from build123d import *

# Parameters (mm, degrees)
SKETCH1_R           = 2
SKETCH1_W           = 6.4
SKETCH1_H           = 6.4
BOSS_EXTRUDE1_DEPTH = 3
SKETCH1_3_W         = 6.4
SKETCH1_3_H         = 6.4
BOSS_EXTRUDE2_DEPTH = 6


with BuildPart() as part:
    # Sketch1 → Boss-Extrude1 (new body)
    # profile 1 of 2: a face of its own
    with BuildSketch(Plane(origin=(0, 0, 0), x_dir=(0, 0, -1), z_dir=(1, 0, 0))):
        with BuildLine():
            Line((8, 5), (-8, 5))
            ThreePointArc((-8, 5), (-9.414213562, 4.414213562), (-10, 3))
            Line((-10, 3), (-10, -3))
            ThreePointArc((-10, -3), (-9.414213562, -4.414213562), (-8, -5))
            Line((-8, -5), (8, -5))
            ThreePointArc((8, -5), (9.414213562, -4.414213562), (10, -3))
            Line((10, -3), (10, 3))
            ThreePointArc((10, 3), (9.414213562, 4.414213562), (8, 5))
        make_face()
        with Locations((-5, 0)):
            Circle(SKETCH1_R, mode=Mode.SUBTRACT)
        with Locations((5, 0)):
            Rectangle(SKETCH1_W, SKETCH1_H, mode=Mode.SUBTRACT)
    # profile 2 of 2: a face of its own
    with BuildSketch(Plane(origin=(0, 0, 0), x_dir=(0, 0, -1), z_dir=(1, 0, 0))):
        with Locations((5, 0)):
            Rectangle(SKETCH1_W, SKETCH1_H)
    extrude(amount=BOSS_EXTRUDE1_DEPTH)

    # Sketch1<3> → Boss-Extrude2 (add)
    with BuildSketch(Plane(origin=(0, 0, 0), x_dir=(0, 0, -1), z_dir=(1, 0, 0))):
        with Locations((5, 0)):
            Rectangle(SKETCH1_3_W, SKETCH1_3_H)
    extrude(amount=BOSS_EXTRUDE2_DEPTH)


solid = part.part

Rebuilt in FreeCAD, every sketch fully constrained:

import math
import FreeCAD as App
import Part
import Sketcher

V = App.Vector


def add_polygon(sketch, points):
    """Adds a closed chain of lines whose ends are joined by coincident constraints."""
    first, n = sketch.GeometryCount, len(points)
    for a, b in zip(points, points[1:] + points[:1]):
        sketch.addGeometry(Part.LineSegment(App.Vector(*a, 0), App.Vector(*b, 0)), False)
    for i in range(n):
        sketch.addConstraint(Sketcher.Constraint("Coincident", first + i, 2, first + (i + 1) % n, 1))

doc = App.newDocument("Part")
params = doc.addObject("Spreadsheet::Sheet", "Params")
for row, (alias, value) in enumerate([
    ("sketch1_diameter", "4 mm"),
    ("sketch1_width", "6 mm"),
    ("sketch1_height", "16 mm"),
    ("pad1_length", "3 mm"),
    ("sketch2_width", "6.4 mm"),
    ("pad2_length", "6 mm"),
], start=1):
    params.set(f"A{row}", alias)
    params.set(f"B{row}", "=" + value)
    params.setAlias(f"B{row}", alias)

body = doc.addObject("PartDesign::Body", "Body")

sketch1 = body.newObject("Sketcher::SketchObject", "Sketch")
sketch1.AttachmentSupport = (doc.getObject("YZ_Plane"), [""])
sketch1.MapMode = "FlatFace"
sketch1.addGeometry([
    Part.LineSegment(V(5, -8, 0), V(5, 8, 0)),
    Part.ArcOfCircle(Part.Circle(V(3, 8, 0), V(0, 0, 1), 2), math.radians(0), math.radians(90)),
    Part.LineSegment(V(3, 10, 0), V(-3, 10, 0)),
    Part.ArcOfCircle(Part.Circle(V(-3, 8, 0), V(0, 0, 1), 2), math.radians(90), math.radians(180)),
    Part.LineSegment(V(-5, 8, 0), V(-5, -8, 0)),
    Part.ArcOfCircle(Part.Circle(V(-3, -8, 0), V(0, 0, 1), 2), math.radians(-180), math.radians(-90)),
    Part.LineSegment(V(-3, -10, 0), V(3, -10, 0)),
    Part.ArcOfCircle(Part.Circle(V(3, -8, 0), V(0, 0, 1), 2), math.radians(-90), math.radians(0)),
    Part.Circle(V(0, 5, 0), V(0, 0, 1), 2),
], False)
sketch1.addConstraint([
    Sketcher.Constraint("Tangent", 0, 2, 1, 1),
    Sketcher.Constraint("Tangent", 1, 2, 2, 1),
    Sketcher.Constraint("Tangent", 2, 2, 3, 1),
    Sketcher.Constraint("Tangent", 3, 2, 4, 1),
    Sketcher.Constraint("Tangent", 4, 2, 5, 1),
    Sketcher.Constraint("Tangent", 5, 2, 6, 1),
    Sketcher.Constraint("Tangent", 6, 2, 7, 1),
    Sketcher.Constraint("Tangent", 7, 2, 0, 1),
    Sketcher.Constraint("Vertical", 0),
    Sketcher.Constraint("Horizontal", 2),
    Sketcher.Constraint("Vertical", 4),
    Sketcher.Constraint("Horizontal", 6),
    Sketcher.Constraint("Equal", 1, 3),
    Sketcher.Constraint("Equal", 3, 5),
    Sketcher.Constraint("Equal", 5, 7),
    Sketcher.Constraint("Equal", 7, 8),
    Sketcher.Constraint("Symmetric", 1, 3, 5, 3, -1, 1),
    Sketcher.Constraint("PointOnObject", 8, 3, -2),
    Sketcher.Constraint("Diameter", 8, 4.0),
    Sketcher.Constraint("DistanceX", 2, 2, 2, 1, 6.0),
    Sketcher.Constraint("DistanceY", 0, 1, 0, 2, 16.0),
    Sketcher.Constraint("DistanceY", -1, 1, 8, 3, 5.0),
])
sketch1.setExpression("Constraints[18]", "Params.sketch1_diameter")
sketch1.setExpression("Constraints[19]", "Params.sketch1_width")
sketch1.setExpression("Constraints[20]", "Params.sketch1_height")
pad1 = body.newObject("PartDesign::Pad", "Pad")
pad1.Profile = sketch1
pad1.setExpression("Length", "Params.pad1_length")

sketch2 = body.newObject("Sketcher::SketchObject", "Sketch001")
sketch2.AttachmentSupport = (doc.getObject("YZ_Plane"), [""])
sketch2.MapMode = "FlatFace"
add_polygon(sketch2, [(3, -2), (-3, -2), (-3, -8), (3, -8)])
sketch2.addConstraint([
    Sketcher.Constraint("Horizontal", 0),
    Sketcher.Constraint("Vertical", 1),
    Sketcher.Constraint("Horizontal", 2),
    Sketcher.Constraint("Vertical", 3),
    Sketcher.Constraint("Equal", 2, 1),
    Sketcher.Constraint("DistanceX", 0, 2, 0, 1, 6.4),
    Sketcher.Constraint("DistanceX", 0, 2, -1, 1, 3.2),
    Sketcher.Constraint("DistanceY", 0, 2, -1, 1, 1.8),
])
sketch2.setExpression("Constraints[9]", "Params.sketch2_width")
pad2 = body.newObject("PartDesign::Pad", "Pad001")
pad2.Profile = sketch2
pad2.setExpression("Length", "Params.pad2_length")

doc.recompute()
